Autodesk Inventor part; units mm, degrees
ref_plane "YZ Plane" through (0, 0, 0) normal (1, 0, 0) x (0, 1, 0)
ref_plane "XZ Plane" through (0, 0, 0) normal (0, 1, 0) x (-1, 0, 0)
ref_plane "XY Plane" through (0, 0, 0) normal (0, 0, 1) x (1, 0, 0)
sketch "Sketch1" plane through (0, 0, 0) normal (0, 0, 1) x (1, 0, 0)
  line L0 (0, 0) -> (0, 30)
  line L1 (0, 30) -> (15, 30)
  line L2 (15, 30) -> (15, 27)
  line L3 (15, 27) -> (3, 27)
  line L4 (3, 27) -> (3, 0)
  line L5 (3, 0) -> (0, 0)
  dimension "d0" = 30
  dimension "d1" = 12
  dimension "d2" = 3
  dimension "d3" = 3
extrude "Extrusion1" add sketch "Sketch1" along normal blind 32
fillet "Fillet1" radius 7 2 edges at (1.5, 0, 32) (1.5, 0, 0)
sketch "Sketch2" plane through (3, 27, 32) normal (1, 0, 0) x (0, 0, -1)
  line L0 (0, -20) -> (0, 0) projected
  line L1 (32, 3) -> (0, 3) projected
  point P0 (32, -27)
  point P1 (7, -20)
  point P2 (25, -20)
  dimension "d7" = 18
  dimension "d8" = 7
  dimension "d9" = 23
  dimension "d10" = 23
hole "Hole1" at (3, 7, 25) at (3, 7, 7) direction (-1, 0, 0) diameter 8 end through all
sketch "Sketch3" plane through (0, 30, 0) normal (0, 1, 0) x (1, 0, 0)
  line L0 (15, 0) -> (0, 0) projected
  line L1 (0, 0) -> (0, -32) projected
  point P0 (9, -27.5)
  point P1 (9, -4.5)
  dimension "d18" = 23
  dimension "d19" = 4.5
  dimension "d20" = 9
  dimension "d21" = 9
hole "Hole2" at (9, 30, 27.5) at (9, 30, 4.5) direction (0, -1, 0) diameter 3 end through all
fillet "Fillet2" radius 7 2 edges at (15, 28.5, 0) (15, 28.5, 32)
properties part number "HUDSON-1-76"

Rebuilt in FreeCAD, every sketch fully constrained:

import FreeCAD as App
import Part
import Sketcher

V = App.Vector


def edges_at(feature, points):
    """Names of the edges that pass closest to the given points."""
    edges = feature.Shape.Edges
    near = lambda p: min(range(len(edges)), key=lambda i: edges[i].distToShape(Part.Vertex(*p))[0])
    return sorted({f"Edge{near(p) + 1}" for p in points})

doc = App.newDocument("Part")
params = doc.addObject("Spreadsheet::Sheet", "Params")
for row, (alias, value) in enumerate([
    ("sketch1_width", "3 mm"),
    ("sketch1_width2", "12 mm"),
    ("sketch1_height", "30 mm"),
    ("pad1_length", "32 mm"),
    ("fillet_radius", "7 mm"),
    ("sketch2_diameter", "8 mm"),
    ("hole_diameter", "8 mm"),
    ("sketch3_diameter", "3 mm"),
    ("hole2_diameter", "3 mm"),
    ("fillet2_radius", "7 mm"),
], start=1):
    params.set(f"A{row}", alias)
    params.set(f"B{row}", "=" + value)
    params.setAlias(f"B{row}", alias)

body = doc.addObject("PartDesign::Body", "Body")

# Sketch on XY plane
sketch1 = body.newObject("Sketcher::SketchObject", "Sketch")
sketch1.AttachmentSupport = (doc.getObject("XY_Plane"), [""])
sketch1.MapMode = "FlatFace"
sketch1.addGeometry([
    Part.LineSegment(V(0, 30, 0), V(0, 0, 0)),  # 0
    Part.LineSegment(V(0, 0, 0), V(3, 0, 0)),  # 1
    Part.LineSegment(V(3, 0, 0), V(3, 27, 0)),  # 2
    Part.LineSegment(V(3, 27, 0), V(15, 27, 0)),  # 3
    Part.LineSegment(V(15, 27, 0), V(15, 30, 0)),  # 4
    Part.LineSegment(V(15, 30, 0), V(0, 30, 0)),  # 5
], False)
sketch1.addConstraint([
    Sketcher.Constraint("Coincident", 0, 2, 1, 1),
    Sketcher.Constraint("Coincident", 1, 2, 2, 1),
    Sketcher.Constraint("Coincident", 2, 2, 3, 1),
    Sketcher.Constraint("Coincident", 3, 2, 4, 1),
    Sketcher.Constraint("Coincident", 4, 2, 5, 1),
    Sketcher.Constraint("Coincident", 5, 2, 0, 1),
    Sketcher.Constraint("Vertical", 0),
    Sketcher.Constraint("Horizontal", 1),
    Sketcher.Constraint("Vertical", 2),
    Sketcher.Constraint("Horizontal", 3),
    Sketcher.Constraint("Vertical", 4),
    Sketcher.Constraint("Horizontal", 5),
    Sketcher.Constraint("Coincident", 0, 2, -1, 1),
    Sketcher.Constraint("Equal", 1, 4),
    Sketcher.Constraint("DistanceX", 1, 1, 1, 2, 3.0),
    Sketcher.Constraint("DistanceX", 3, 1, 3, 2, 12.0),
    Sketcher.Constraint("DistanceY", 0, 2, 0, 1, 30.0),
])
sketch1.setExpression("Constraints[14]", "Params.sketch1_width")
sketch1.setExpression("Constraints[15]", "Params.sketch1_width2")
sketch1.setExpression("Constraints[16]", "Params.sketch1_height")
pad1 = body.newObject("PartDesign::Pad", "Pad")
pad1.Profile = sketch1
pad1.setExpression("Length", "Params.pad1_length")
doc.recompute()

fillet = body.newObject("PartDesign::Fillet", "Fillet")
fillet.Base = (pad1, edges_at(pad1, [(1.5, 0, 32), (1.5, 0, 0)]))
fillet.setExpression("Radius", "Params.fillet_radius")

# Sketch on YZ plane
sketch2 = body.newObject("Sketcher::SketchObject", "Sketch001")
sketch2.AttachmentSupport = (doc.getObject("YZ_Plane"), [""])
sketch2.MapMode = "FlatFace"
sketch2.AttachmentOffset = App.Placement(V(0, 0, 3), App.Rotation())
sketch2.addGeometry([
    Part.Circle(V(7, 25, 0), V(0, 0, 1), 4),
    Part.Circle(V(7, 7, 0), V(0, 0, 1), 4),
], False)
sketch2.addConstraint([
    Sketcher.Constraint("Equal", 0, 1),
    Sketcher.Constraint("Vertical", 0, 3, 1, 3),
    Sketcher.Constraint("Diameter", 0, 8.0),
    Sketcher.Constraint("DistanceX", -1, 1, 0, 3, 7.0),
    Sketcher.Constraint("DistanceY", -1, 1, 0, 3, 25.0),
    Sketcher.Constraint("DistanceY", -1, 1, 1, 3, 7.0),
])
sketch2.setExpression("Constraints[2]", "Params.sketch2_diameter")
doc.recompute()
hole = body.newObject("PartDesign::Hole", "Hole")
hole.Profile = sketch2
hole.ThreadType = "None"
hole.setExpression("Diameter", "Params.hole_diameter")
hole.DepthType = "ThroughAll"

# Sketch on XZ plane
sketch3 = body.newObject("Sketcher::SketchObject", "Sketch002")
sketch3.AttachmentSupport = (doc.getObject("XZ_Plane"), [""])
sketch3.MapMode = "FlatFace"
sketch3.AttachmentOffset = App.Placement(V(0, 0, -30), App.Rotation())
sketch3.addGeometry([
    Part.Circle(V(9, 27.5, 0), V(0, 0, 1), 1.5),
    Part.Circle(V(9, 4.5, 0), V(0, 0, 1), 1.5),
], False)
sketch3.addConstraint([
    Sketcher.Constraint("Equal", 0, 1),
    Sketcher.Constraint("Vertical", 0, 3, 1, 3),
    Sketcher.Constraint("Diameter", 0, 3.0),
    Sketcher.Constraint("DistanceX", -1, 1, 0, 3, 9.0),
    Sketcher.Constraint("DistanceY", 1, 3, 0, 3, 23.0),
    Sketcher.Constraint("DistanceY", -1, 1, 0, 3, 27.5),
])
sketch3.setExpression("Constraints[2]", "Params.sketch3_diameter")
doc.recompute()
hole2 = body.newObject("PartDesign::Hole", "Hole001")
hole2.Profile = sketch3
hole2.ThreadType = "None"
hole2.setExpression("Diameter", "Params.hole2_diameter")
hole2.DepthType = "ThroughAll"
hole2.Reversed = True
doc.recompute()

fillet2 = body.newObject("PartDesign::Fillet", "Fillet001")
fillet2.Base = (hole2, edges_at(hole2, [(15, 28.5, 0), (15, 28.5, 32)]))
fillet2.setExpression("Radius", "Params.fillet2_radius")

doc.recompute()
